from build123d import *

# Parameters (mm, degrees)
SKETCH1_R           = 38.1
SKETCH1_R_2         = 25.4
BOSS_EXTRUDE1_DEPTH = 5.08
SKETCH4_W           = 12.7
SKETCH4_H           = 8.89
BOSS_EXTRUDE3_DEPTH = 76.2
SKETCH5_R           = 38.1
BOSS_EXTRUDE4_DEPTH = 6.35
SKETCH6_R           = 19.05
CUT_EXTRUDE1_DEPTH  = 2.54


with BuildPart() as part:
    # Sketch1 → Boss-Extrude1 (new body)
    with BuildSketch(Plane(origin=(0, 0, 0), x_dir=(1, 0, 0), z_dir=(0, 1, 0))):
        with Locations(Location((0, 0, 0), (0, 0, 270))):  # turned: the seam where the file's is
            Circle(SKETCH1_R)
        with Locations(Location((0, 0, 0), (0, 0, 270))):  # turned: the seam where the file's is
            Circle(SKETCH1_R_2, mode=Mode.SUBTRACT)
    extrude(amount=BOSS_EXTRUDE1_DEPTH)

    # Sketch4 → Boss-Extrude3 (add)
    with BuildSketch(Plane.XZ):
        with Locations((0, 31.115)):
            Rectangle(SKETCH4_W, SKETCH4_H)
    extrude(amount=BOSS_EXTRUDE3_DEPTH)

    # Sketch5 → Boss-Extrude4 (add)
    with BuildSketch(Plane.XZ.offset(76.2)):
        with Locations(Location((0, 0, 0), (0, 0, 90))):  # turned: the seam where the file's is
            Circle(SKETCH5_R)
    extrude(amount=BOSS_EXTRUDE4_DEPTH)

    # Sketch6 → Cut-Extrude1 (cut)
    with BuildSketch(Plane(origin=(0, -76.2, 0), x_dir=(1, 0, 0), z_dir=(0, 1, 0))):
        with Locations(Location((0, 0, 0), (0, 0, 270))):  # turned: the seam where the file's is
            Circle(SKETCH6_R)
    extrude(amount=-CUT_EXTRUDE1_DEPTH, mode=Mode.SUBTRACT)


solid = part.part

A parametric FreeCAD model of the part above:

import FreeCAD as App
import Part
import Sketcher
Q = App.Units.Quantity

doc = App.newDocument("Part")
body = doc.addObject("PartDesign::Body", "Body")

sketch1 = body.newObject("Sketcher::SketchObject", "Sketch")
sketch1.AttachmentSupport = (doc.getObject("XZ_Plane"), [""])
sketch1.MapMode = "FlatFace"
sketch1.addGeometry([
    Part.Circle(App.Vector(0, 0, 0), App.Vector(0, 0, 1), 38),
    Part.Circle(App.Vector(0, 0, 0), App.Vector(0, 0, 1), 25),
], False)
sketch1.addConstraint([
    Sketcher.Constraint("Coincident", 0, 3, -1, 1),
    Sketcher.Constraint("Coincident", 1, 3, -1, 1),
    Sketcher.Constraint("Diameter", 0, Q("3 in")),
    Sketcher.Constraint("Diameter", 1, Q("2 in")),
])
pad1 = body.newObject("PartDesign::Pad", "Pad")
pad1.Profile = sketch1
pad1.Length = Q("0.2 in")
pad1.Reversed = True

sketch2 = body.newObject("Sketcher::SketchObject", "Sketch001")
sketch2.AttachmentSupport = (doc.getObject("XZ_Plane"), [""])
sketch2.MapMode = "FlatFace"
sketch2.addGeometry([
    Part.LineSegment(App.Vector(-6, 36, 0), App.Vector(-6, 27, 0)),
    Part.LineSegment(App.Vector(-6, 27, 0), App.Vector(6, 27, 0)),
    Part.LineSegment(App.Vector(6, 27, 0), App.Vector(6, 36, 0)),
    Part.LineSegment(App.Vector(6, 36, 0), App.Vector(-6, 36, 0)),
], False)
sketch2.addConstraint([
    Sketcher.Constraint("Coincident", 0, 2, 1, 1),
    Sketcher.Constraint("Coincident", 1, 2, 2, 1),
    Sketcher.Constraint("Coincident", 2, 2, 3, 1),
    Sketcher.Constraint("Coincident", 3, 2, 0, 1),
    Sketcher.Constraint("Vertical", 0),
    Sketcher.Constraint("Horizontal", 1),
    Sketcher.Constraint("Vertical", 2),
    Sketcher.Constraint("Horizontal", 3),
    Sketcher.Constraint("DistanceX", 1, 1, 1, 2, Q("0.5 in")),
    Sketcher.Constraint("DistanceY", 0, 2, 0, 1, Q("0.35 in")),
    Sketcher.Constraint("DistanceY", -1, 1, 2, 2, Q("1.4 in")),
    Sketcher.Constraint("DistanceX", 0, 2, -1, 1, Q("0.25 in")),
])
pad2 = body.newObject("PartDesign::Pad", "Pad001")
pad2.Profile = sketch2
pad2.Length = Q("3 in")

sketch3 = body.newObject("Sketcher::SketchObject", "Sketch002")
sketch3.AttachmentSupport = (doc.getObject("XZ_Plane"), [""])
sketch3.MapMode = "FlatFace"
sketch3.AttachmentOffset = App.Placement(App.Vector(0, 0, 3 * 25.4), App.Rotation())
sketch3.addGeometry(Part.Circle(App.Vector(0, 0, 0), App.Vector(0, 0, 1), 38), False)
sketch3.addConstraint([
    Sketcher.Constraint("Coincident", 0, 3, -1, 1),
    Sketcher.Constraint("Diameter", 0, Q("3 in")),
])
pad3 = body.newObject("PartDesign::Pad", "Pad002")
pad3.Profile = sketch3
pad3.Length = Q("0.25 in")

sketch4 = body.newObject("Sketcher::SketchObject", "Sketch003")
sketch4.AttachmentSupport = (doc.getObject("XZ_Plane"), [""])
sketch4.MapMode = "FlatFace"
sketch4.AttachmentOffset = App.Placement(App.Vector(0, 0, 3 * 25.4), App.Rotation())
sketch4.addGeometry(Part.Circle(App.Vector(0, 0, 0), App.Vector(0, 0, 1), 19), False)
sketch4.addConstraint([
    Sketcher.Constraint("Coincident", 0, 3, -1, 1),
    Sketcher.Constraint("Diameter", 0, Q("1.5 in")),
])
pocket1 = body.newObject("PartDesign::Pocket", "Pocket")
pocket1.Profile = sketch4
pocket1.Length = Q("0.1 in")
pocket1.Reversed = True

doc.recompute()
